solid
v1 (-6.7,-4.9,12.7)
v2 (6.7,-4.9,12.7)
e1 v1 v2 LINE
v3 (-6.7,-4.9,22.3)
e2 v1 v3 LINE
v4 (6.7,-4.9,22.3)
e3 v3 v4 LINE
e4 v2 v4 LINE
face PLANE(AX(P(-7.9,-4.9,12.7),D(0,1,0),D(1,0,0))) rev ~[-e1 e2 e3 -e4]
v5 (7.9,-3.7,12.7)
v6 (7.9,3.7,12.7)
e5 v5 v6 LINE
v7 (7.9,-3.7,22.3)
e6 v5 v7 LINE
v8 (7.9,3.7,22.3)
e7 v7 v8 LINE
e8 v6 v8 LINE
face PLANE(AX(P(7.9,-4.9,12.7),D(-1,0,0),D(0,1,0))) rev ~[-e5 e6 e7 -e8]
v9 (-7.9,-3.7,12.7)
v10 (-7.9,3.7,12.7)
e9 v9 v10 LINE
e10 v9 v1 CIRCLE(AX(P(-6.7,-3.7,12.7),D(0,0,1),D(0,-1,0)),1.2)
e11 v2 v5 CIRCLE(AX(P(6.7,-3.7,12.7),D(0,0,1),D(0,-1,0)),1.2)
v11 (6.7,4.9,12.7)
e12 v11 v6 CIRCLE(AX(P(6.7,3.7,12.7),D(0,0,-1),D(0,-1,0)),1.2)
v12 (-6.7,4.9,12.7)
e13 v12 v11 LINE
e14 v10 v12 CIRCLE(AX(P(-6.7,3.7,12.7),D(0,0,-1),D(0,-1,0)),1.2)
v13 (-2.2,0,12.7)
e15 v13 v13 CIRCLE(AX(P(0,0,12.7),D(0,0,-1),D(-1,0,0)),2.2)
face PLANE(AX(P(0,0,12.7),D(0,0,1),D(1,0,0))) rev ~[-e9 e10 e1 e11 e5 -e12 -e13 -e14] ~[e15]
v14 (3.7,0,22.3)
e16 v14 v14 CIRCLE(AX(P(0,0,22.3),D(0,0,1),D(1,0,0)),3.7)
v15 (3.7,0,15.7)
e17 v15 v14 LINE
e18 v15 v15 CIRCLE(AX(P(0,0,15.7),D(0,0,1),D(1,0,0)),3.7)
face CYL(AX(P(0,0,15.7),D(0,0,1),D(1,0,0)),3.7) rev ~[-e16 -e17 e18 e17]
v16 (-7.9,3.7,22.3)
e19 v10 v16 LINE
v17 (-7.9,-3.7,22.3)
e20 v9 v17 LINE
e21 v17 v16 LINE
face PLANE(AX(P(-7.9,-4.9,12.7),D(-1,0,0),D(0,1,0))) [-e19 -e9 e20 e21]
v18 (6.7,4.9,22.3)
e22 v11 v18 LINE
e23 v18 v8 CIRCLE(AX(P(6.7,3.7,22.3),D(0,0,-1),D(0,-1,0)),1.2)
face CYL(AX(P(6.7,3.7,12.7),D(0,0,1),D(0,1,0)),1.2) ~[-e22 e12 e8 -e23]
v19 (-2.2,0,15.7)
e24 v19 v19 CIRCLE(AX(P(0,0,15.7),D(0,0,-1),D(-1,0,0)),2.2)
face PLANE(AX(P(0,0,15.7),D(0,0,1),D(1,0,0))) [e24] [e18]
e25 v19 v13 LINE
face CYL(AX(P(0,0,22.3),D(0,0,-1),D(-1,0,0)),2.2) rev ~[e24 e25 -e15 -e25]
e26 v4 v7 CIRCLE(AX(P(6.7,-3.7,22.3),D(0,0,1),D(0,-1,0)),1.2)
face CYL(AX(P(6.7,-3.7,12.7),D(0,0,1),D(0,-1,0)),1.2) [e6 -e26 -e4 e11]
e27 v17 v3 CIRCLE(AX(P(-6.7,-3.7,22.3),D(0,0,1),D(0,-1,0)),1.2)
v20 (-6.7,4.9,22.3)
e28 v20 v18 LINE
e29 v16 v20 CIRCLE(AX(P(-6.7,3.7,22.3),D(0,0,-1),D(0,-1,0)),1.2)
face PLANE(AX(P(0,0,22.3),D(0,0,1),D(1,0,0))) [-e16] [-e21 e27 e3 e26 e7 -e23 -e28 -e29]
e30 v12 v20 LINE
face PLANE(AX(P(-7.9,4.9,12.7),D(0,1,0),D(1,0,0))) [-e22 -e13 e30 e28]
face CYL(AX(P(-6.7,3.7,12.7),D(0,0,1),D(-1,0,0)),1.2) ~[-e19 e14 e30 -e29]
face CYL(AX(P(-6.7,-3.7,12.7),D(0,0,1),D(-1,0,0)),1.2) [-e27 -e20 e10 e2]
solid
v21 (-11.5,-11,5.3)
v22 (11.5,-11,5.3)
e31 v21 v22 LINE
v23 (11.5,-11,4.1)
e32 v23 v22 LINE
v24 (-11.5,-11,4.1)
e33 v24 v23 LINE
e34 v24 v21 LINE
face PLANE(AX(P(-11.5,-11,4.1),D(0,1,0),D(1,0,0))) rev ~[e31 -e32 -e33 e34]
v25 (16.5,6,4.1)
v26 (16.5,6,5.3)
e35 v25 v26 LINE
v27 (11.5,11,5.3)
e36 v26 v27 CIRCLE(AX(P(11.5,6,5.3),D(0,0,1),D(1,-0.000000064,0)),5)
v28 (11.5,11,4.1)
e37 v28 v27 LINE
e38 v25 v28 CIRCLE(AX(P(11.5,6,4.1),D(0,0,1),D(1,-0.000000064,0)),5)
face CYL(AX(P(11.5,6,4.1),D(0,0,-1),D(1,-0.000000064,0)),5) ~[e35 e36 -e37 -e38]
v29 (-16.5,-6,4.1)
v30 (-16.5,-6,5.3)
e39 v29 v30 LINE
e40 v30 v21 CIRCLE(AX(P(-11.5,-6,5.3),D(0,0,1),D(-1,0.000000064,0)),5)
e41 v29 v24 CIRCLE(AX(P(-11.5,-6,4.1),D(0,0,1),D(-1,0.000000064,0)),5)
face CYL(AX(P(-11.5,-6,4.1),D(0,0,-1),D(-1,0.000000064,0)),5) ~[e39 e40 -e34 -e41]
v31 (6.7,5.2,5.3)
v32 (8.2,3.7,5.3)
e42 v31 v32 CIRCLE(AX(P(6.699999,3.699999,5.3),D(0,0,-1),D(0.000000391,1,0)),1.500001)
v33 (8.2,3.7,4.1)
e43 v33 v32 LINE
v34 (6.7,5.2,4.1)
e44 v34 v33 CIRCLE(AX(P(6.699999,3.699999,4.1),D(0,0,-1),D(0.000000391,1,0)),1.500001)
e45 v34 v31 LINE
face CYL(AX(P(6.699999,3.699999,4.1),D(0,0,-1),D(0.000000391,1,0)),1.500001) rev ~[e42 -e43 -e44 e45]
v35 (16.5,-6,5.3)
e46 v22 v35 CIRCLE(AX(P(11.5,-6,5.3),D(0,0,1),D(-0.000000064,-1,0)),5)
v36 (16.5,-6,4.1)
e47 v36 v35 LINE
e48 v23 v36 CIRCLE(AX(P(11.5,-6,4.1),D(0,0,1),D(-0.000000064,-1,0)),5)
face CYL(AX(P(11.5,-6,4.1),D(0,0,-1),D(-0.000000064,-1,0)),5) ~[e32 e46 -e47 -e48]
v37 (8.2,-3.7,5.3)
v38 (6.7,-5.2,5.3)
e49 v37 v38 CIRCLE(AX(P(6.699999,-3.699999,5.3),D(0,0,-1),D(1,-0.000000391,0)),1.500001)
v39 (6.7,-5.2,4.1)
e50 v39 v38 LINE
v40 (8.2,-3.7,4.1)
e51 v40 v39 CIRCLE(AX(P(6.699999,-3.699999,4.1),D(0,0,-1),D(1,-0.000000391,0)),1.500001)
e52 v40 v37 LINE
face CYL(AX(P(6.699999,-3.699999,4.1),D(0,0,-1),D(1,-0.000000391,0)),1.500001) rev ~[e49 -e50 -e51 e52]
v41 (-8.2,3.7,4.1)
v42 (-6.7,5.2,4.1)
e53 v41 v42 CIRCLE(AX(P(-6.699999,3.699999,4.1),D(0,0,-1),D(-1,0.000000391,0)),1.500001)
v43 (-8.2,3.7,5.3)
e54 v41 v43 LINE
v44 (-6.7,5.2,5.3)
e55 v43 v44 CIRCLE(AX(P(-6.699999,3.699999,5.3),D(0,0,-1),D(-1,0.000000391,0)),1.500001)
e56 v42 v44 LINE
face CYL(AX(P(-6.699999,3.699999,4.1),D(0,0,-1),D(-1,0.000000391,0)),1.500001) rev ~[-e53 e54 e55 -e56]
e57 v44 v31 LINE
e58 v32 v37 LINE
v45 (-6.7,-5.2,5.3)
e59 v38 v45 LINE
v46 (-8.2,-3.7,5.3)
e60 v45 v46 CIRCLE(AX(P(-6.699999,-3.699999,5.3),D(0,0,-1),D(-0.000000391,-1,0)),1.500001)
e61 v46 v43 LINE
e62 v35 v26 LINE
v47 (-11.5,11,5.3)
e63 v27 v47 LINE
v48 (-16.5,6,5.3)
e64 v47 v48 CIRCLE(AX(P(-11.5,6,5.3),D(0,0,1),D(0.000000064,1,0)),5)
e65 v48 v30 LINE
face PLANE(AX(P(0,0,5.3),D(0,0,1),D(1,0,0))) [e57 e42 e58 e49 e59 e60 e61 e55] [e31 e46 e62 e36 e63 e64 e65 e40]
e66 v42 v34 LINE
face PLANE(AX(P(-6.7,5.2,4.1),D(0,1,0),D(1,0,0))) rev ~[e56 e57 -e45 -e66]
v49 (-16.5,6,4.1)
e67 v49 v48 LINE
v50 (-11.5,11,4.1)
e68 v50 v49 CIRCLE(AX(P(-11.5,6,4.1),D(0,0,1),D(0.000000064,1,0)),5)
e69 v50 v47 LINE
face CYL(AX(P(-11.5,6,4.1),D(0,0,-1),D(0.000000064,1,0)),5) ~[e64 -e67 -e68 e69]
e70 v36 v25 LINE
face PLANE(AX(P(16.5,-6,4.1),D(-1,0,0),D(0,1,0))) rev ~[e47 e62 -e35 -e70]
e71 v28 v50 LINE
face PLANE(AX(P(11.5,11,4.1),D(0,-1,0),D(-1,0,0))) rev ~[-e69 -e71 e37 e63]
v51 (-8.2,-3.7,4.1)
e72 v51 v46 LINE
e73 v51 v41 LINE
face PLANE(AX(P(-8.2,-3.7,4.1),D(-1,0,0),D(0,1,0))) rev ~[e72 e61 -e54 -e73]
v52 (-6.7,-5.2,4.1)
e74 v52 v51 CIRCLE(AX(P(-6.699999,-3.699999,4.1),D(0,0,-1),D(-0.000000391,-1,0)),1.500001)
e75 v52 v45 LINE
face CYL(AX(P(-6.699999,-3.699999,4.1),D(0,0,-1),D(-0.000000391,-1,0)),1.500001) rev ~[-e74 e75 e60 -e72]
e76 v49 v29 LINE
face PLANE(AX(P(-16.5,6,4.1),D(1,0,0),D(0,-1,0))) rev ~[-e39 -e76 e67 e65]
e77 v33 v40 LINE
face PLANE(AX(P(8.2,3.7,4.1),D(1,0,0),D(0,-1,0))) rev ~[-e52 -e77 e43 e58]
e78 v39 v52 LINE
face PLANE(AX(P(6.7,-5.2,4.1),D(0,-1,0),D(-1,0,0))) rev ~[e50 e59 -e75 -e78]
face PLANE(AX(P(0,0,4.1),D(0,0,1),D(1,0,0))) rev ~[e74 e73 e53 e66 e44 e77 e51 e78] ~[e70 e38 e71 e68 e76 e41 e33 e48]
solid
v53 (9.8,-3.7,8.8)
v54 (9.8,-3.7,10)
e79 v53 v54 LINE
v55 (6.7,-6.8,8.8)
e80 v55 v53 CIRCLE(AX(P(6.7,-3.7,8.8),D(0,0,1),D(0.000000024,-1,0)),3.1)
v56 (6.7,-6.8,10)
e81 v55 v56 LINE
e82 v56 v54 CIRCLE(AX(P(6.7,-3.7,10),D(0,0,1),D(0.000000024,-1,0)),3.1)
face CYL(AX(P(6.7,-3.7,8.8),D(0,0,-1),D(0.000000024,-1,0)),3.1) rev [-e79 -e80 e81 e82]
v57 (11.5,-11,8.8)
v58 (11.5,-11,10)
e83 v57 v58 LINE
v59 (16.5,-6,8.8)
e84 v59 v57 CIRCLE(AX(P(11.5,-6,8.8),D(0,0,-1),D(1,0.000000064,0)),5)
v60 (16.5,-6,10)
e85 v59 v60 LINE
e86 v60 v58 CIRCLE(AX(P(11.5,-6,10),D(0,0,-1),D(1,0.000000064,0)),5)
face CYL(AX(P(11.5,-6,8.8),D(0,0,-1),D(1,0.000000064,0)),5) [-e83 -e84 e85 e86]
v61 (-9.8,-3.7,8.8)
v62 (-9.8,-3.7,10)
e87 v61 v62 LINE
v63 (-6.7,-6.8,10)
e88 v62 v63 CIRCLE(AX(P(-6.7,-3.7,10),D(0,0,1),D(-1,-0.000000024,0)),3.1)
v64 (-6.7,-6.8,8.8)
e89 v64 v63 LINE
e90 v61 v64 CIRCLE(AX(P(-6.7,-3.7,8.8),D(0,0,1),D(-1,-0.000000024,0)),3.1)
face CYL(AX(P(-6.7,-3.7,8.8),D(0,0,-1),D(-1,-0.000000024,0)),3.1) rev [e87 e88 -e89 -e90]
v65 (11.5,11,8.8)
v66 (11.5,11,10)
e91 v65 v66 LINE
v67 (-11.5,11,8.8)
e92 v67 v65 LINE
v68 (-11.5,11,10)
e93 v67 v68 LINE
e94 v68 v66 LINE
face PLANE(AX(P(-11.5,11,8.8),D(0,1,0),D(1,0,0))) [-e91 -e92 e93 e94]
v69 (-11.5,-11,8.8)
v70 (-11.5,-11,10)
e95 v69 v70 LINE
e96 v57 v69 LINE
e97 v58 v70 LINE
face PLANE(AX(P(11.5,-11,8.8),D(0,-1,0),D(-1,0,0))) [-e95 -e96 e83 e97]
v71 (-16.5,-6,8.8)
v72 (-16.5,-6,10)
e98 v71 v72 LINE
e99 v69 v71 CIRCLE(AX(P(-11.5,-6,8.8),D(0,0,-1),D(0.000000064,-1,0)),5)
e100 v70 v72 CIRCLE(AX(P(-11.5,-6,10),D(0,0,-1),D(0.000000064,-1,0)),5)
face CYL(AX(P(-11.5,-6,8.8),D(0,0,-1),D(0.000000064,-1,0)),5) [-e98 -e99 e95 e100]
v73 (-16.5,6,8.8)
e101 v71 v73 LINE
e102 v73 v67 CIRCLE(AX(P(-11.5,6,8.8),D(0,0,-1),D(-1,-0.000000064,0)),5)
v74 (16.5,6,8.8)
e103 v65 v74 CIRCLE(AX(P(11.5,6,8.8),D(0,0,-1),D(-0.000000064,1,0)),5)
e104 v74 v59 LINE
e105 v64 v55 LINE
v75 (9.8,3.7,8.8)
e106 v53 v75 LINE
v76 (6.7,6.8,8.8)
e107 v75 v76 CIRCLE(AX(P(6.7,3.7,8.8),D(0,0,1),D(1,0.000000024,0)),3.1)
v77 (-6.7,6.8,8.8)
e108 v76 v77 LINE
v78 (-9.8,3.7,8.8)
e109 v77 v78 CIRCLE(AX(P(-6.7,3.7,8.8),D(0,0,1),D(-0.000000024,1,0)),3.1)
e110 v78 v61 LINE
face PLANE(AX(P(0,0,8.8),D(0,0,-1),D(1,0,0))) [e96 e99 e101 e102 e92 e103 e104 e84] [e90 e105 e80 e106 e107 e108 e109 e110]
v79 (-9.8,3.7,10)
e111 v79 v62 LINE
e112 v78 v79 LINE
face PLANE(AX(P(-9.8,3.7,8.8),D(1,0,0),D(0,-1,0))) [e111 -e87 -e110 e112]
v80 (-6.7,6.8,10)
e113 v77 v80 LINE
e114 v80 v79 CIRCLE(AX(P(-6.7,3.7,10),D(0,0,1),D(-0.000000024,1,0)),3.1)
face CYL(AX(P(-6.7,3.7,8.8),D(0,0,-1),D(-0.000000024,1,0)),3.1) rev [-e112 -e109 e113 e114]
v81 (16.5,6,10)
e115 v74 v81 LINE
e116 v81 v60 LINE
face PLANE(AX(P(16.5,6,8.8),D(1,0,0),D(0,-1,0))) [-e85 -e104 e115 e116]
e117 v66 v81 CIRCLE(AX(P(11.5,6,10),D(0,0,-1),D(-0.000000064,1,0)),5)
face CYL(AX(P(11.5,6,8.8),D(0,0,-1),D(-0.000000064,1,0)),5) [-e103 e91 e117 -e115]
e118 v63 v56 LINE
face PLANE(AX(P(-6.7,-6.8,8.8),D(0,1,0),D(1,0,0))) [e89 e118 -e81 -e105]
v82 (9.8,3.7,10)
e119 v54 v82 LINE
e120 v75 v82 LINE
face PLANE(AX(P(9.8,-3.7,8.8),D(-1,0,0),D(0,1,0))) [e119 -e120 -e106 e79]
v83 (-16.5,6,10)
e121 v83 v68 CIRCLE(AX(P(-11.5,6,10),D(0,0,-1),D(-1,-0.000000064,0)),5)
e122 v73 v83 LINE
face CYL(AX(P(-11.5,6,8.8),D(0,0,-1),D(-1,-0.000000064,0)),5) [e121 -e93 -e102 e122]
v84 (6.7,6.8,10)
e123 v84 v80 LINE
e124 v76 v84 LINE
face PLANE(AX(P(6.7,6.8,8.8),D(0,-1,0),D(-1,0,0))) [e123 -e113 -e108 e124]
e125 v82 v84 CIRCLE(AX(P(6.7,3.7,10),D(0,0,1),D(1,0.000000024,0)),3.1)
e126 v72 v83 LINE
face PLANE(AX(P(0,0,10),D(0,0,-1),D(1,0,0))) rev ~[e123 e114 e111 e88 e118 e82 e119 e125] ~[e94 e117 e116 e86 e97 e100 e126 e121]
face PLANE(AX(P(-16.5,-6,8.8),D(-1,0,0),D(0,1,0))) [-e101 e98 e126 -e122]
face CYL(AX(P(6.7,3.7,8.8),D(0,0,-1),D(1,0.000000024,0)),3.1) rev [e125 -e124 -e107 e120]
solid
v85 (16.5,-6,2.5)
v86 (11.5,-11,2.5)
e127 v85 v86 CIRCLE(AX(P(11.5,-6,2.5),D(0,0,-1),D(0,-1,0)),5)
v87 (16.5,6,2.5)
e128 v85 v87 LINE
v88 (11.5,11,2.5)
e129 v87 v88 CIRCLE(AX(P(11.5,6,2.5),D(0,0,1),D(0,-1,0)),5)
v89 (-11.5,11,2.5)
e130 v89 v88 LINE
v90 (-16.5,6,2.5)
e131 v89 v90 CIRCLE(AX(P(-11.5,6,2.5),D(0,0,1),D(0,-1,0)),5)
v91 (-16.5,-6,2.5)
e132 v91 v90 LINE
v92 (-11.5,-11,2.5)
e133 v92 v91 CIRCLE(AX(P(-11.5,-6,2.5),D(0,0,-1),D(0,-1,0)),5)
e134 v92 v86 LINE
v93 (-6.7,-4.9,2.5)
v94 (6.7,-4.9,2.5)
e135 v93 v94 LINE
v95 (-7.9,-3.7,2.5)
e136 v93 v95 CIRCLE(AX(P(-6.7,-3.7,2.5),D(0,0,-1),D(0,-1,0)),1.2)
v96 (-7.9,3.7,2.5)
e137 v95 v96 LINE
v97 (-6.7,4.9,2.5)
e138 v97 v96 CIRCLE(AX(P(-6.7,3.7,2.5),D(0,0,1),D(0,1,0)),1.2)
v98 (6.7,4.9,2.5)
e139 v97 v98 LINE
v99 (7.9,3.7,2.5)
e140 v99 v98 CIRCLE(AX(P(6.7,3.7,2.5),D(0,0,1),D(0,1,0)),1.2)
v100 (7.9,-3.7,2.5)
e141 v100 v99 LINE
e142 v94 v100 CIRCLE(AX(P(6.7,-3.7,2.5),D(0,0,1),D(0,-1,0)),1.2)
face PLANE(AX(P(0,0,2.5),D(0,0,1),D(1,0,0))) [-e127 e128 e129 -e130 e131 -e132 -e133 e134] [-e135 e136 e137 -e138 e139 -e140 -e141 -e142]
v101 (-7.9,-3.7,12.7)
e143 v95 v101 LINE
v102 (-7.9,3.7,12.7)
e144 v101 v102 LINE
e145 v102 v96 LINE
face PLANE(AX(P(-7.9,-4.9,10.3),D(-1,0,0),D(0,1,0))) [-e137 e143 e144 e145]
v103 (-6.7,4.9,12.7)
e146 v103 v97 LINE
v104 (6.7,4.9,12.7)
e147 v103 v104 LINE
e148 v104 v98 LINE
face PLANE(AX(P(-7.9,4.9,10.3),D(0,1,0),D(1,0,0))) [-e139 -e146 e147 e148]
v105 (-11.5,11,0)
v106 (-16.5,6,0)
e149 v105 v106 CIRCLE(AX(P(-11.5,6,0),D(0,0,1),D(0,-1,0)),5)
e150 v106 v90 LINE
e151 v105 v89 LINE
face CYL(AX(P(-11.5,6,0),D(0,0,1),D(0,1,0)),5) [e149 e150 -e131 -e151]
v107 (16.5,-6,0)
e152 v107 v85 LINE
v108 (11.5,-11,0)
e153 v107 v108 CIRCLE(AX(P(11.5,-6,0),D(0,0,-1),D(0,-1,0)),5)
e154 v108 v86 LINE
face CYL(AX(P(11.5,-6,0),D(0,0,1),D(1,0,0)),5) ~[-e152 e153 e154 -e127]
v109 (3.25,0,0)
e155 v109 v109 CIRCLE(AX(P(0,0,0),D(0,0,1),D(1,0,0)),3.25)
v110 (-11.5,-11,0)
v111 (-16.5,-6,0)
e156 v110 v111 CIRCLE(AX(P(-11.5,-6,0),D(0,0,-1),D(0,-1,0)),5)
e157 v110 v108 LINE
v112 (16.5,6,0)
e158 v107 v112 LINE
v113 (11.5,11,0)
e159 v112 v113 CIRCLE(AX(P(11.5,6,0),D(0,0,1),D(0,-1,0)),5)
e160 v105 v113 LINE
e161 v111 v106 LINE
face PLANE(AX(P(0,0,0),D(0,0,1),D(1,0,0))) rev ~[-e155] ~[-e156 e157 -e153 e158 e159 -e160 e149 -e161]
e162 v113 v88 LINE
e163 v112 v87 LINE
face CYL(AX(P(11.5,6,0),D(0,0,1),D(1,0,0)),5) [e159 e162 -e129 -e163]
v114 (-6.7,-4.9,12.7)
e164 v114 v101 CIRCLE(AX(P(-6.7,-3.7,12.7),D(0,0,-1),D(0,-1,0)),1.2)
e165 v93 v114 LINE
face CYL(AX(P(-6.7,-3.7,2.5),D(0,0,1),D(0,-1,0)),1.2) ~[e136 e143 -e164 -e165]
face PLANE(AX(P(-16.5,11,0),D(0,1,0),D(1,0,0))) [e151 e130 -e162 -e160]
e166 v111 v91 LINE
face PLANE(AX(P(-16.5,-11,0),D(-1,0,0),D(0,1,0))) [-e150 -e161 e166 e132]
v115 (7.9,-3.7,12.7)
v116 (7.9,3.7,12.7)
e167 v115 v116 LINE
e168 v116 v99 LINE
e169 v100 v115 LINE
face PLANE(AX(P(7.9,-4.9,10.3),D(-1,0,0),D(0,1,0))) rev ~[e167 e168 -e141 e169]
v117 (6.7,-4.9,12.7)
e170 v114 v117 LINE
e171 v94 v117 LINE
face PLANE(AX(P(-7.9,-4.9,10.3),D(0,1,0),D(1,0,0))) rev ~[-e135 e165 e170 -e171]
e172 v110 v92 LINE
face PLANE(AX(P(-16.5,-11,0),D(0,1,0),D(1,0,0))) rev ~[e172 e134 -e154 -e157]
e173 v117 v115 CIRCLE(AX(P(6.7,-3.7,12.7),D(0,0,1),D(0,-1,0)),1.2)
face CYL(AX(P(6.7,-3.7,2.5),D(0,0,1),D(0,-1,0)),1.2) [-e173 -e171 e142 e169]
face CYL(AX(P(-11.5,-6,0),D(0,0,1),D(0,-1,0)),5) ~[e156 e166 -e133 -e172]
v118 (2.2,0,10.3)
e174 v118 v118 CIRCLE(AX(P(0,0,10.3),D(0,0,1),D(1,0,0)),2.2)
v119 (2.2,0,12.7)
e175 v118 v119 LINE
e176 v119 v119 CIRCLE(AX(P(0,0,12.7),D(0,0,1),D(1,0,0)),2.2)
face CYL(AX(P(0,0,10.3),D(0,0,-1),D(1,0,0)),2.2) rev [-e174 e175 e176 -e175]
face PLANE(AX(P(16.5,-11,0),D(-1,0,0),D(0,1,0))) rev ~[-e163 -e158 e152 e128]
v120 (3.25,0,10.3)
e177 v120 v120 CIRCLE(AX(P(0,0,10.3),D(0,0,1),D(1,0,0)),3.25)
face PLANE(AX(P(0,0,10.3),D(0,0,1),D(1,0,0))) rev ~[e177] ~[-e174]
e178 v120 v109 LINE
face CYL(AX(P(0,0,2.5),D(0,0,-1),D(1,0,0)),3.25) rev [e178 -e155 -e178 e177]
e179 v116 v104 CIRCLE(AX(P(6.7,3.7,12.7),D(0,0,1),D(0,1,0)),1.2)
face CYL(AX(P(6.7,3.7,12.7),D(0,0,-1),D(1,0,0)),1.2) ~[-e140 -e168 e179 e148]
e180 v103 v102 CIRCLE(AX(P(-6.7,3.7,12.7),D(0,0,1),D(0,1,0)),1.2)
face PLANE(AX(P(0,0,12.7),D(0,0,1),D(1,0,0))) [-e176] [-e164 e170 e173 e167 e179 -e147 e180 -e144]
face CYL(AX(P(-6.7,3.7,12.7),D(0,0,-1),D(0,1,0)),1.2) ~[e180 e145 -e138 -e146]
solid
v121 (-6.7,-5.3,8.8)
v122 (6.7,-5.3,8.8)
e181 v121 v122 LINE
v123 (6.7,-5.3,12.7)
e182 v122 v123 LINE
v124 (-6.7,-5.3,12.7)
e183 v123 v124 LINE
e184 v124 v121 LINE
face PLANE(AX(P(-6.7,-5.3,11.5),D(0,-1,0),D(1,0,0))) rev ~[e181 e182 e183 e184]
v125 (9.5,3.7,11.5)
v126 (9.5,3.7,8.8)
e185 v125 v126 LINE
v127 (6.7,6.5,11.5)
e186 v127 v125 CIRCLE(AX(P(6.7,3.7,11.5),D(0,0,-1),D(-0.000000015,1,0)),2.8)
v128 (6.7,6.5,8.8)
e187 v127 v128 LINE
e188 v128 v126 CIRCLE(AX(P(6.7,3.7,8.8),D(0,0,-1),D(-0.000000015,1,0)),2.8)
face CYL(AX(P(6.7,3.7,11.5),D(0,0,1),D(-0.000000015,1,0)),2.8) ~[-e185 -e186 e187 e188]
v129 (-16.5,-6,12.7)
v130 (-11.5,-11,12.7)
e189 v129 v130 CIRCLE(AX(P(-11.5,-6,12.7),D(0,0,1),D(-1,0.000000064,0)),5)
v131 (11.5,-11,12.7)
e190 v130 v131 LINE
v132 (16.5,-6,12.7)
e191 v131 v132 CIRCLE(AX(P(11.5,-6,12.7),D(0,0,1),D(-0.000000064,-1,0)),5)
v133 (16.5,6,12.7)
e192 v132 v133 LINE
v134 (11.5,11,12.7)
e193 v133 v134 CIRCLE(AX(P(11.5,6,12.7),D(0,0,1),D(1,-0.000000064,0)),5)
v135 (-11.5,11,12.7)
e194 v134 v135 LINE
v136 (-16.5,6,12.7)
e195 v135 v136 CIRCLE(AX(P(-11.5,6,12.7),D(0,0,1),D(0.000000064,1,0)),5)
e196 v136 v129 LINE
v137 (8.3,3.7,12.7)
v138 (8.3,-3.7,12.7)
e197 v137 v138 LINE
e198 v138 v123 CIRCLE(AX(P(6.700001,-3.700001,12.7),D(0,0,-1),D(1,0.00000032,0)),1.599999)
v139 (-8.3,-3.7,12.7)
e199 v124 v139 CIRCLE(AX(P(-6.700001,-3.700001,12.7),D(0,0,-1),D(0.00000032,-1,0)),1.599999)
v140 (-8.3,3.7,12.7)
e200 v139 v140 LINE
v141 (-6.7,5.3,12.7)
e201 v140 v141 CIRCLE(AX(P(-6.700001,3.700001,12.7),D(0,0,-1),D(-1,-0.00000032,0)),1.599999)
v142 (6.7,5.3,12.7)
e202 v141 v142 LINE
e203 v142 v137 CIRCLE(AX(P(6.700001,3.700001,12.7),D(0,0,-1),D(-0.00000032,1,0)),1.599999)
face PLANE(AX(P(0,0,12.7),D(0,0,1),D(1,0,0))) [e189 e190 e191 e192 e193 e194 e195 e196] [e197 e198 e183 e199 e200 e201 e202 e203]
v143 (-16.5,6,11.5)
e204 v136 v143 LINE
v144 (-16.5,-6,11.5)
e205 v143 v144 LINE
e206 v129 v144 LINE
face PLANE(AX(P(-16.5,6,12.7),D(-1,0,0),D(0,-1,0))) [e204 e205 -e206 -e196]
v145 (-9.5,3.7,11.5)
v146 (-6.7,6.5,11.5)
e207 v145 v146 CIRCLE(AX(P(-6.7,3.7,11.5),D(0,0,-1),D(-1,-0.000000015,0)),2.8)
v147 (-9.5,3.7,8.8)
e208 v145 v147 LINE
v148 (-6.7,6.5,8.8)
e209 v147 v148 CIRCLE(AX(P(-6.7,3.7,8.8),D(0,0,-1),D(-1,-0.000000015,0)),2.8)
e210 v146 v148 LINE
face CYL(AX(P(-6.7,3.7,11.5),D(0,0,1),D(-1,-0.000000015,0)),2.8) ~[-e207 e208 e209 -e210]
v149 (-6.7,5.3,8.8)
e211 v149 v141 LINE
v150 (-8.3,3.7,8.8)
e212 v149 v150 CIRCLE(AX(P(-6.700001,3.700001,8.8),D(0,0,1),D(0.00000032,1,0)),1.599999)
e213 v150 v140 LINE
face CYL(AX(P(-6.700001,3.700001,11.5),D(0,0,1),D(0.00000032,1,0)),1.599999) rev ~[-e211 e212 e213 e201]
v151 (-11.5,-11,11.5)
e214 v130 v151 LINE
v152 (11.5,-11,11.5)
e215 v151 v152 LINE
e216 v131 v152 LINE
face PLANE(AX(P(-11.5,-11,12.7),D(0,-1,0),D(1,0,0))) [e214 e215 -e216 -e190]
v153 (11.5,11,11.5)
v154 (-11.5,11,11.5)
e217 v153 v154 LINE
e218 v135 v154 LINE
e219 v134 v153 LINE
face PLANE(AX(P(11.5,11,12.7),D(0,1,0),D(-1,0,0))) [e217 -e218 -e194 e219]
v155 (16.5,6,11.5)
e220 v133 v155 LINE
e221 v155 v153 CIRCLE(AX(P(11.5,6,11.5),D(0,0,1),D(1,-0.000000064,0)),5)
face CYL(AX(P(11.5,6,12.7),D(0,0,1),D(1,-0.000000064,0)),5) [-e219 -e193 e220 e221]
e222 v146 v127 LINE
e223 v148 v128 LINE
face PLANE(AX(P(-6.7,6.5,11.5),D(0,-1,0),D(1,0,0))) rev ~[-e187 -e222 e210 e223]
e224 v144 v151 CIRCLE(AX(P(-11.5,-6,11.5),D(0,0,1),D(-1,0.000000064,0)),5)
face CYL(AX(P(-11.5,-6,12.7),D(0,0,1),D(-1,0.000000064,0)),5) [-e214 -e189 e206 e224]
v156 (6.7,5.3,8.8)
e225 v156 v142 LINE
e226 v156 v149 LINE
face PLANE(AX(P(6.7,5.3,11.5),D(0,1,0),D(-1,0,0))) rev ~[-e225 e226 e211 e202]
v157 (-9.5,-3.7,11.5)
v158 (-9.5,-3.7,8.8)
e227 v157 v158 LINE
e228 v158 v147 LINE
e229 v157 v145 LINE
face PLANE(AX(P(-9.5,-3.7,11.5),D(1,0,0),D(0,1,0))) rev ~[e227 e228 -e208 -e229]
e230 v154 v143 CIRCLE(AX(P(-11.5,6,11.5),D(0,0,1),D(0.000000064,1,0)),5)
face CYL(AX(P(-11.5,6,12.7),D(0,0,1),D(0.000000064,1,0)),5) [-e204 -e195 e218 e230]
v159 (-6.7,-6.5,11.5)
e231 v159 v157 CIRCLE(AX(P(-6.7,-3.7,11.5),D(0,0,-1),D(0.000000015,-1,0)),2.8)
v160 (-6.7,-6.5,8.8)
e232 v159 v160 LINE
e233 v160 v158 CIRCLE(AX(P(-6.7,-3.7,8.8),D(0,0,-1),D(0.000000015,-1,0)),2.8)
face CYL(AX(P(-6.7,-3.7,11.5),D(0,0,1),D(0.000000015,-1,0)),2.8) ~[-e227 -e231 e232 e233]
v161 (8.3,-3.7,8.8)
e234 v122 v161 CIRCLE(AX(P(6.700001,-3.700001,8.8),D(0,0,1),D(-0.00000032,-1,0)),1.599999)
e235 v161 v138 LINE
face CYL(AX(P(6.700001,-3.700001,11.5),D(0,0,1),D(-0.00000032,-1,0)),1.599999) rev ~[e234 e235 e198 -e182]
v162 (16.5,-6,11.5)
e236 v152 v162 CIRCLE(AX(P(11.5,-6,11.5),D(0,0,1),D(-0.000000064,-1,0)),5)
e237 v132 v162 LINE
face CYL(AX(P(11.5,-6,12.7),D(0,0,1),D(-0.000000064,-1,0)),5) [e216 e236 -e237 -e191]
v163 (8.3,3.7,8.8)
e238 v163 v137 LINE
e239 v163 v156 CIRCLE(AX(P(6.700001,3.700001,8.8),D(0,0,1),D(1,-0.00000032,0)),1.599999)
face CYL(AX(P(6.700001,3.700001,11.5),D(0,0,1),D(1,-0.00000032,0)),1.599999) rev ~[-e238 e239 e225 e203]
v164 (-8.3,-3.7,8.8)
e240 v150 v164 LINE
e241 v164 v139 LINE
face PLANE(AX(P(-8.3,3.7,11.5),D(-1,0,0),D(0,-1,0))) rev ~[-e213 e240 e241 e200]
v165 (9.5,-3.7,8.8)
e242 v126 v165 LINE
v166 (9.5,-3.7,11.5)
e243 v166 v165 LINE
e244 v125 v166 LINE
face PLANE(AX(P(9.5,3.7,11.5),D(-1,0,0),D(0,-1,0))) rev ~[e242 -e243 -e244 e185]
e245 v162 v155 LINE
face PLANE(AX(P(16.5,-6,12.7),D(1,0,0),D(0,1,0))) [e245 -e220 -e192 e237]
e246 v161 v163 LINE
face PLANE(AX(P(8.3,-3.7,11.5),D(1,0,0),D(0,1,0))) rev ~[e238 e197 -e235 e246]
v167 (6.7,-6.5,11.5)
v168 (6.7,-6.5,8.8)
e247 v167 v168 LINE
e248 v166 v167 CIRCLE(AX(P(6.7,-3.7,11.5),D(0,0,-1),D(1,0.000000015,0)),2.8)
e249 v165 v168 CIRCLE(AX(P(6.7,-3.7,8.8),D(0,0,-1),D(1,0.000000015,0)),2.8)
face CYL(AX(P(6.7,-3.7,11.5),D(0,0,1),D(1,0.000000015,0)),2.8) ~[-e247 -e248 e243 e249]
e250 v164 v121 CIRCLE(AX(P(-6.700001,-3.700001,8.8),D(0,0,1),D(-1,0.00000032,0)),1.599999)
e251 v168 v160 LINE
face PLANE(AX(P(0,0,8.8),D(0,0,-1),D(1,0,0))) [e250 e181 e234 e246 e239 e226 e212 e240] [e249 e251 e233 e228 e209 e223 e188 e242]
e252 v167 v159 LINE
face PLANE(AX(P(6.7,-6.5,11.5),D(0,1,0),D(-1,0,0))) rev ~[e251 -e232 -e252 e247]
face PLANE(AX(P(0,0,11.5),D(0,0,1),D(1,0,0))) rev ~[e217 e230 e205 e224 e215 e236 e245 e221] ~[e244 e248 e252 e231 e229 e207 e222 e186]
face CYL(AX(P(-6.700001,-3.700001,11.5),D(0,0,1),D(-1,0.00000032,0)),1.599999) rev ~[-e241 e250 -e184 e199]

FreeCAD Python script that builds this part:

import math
import FreeCAD as App
import Part
import Sketcher
from FreeCAD import Vector


def edges_at(feature, points):
    """Names of the edges that pass closest to the given points."""
    edges = feature.Shape.Edges
    near = lambda p: min(range(len(edges)), key=lambda i: edges[i].distToShape(Part.Vertex(*p))[0])
    return sorted({f"Edge{near(p) + 1}" for p in points})


def add_polygon(sketch, points):
    """Adds a closed chain of lines whose ends are joined by coincident constraints."""
    first, n = sketch.GeometryCount, len(points)
    for a, b in zip(points, points[1:] + points[:1]):
        sketch.addGeometry(Part.LineSegment(App.Vector(*a, 0), App.Vector(*b, 0)), False)
    for i in range(n):
        sketch.addConstraint(Sketcher.Constraint("Coincident", first + i, 2, first + (i + 1) % n, 1))

doc = App.newDocument("Part")
body = doc.addObject("PartDesign::Body", "Body")

# Sketch on XY plane
sketch1 = body.newObject("Sketcher::SketchObject", "Sketch")
sketch1.AttachmentSupport = (doc.getObject("XY_Plane"), [""])
sketch1.MapMode = "FlatFace"
add_polygon(sketch1, [(-16.5, 11), (-16.5, -11), (16.5, -11), (16.5, 11)])  # lines 0-3
sketch1.addGeometry(Part.Circle(Vector(0, 0, 0), Vector(0, 0, 1), 3.2), False)  # 4
sketch1.addConstraint(Sketcher.Constraint("Vertical", 0))
sketch1.addConstraint(Sketcher.Constraint("Horizontal", 1))
sketch1.addConstraint(Sketcher.Constraint("Vertical", 2))
sketch1.addConstraint(Sketcher.Constraint("Horizontal", 3))
sketch1.addConstraint(Sketcher.Constraint("Coincident", 4, 3, -1, 1))
sketch1.addConstraint(Sketcher.Constraint("Symmetric", 0, 2, 2, 2, -1, 1))
sketch1.addConstraint(Sketcher.Constraint("Diameter", 4, 6.5))
sketch1.addConstraint(Sketcher.Constraint("DistanceX", 1, 1, 1, 2, 33.0))
sketch1.addConstraint(Sketcher.Constraint("DistanceY", 0, 2, 0, 1, 22.0))
pad1 = body.newObject("PartDesign::Pad", "Pad")
pad1.Profile = sketch1
pad1.Length = 2.5

# Sketch on XY plane
sketch2 = body.newObject("Sketcher::SketchObject", "Sketch001")
sketch2.AttachmentSupport = (doc.getObject("XY_Plane"), [""])
sketch2.MapMode = "FlatFace"
sketch2.AttachmentOffset = App.Placement(Vector(0, 0, 2.5), App.Rotation())
add_polygon(sketch2, [(-7.9, 4.9), (-7.9, -4.9), (7.9, -4.9), (7.9, 4.9)])  # lines 0-3
sketch2.addGeometry(Part.Circle(Vector(0, 0, 0), Vector(0, 0, 1), 3.2), False)  # 4
sketch2.addConstraint(Sketcher.Constraint("Vertical", 0))
sketch2.addConstraint(Sketcher.Constraint("Horizontal", 1))
sketch2.addConstraint(Sketcher.Constraint("Vertical", 2))
sketch2.addConstraint(Sketcher.Constraint("Horizontal", 3))
sketch2.addConstraint(Sketcher.Constraint("Coincident", 4, 3, -1, 1))
sketch2.addConstraint(Sketcher.Constraint("Symmetric", 0, 2, 2, 2, -1, 1))
sketch2.addConstraint(Sketcher.Constraint("Diameter", 4, 6.5))
sketch2.addConstraint(Sketcher.Constraint("DistanceX", 1, 1, 1, 2, 15.8))
sketch2.addConstraint(Sketcher.Constraint("DistanceY", 0, 2, 0, 1, 9.8))
pad2 = body.newObject("PartDesign::Pad", "Pad001")
pad2.Profile = sketch2
pad2.Length = 7.8

# Sketch on XY plane
sketch3 = body.newObject("Sketcher::SketchObject", "Sketch002")
sketch3.AttachmentSupport = (doc.getObject("XY_Plane"), [""])
sketch3.MapMode = "FlatFace"
sketch3.AttachmentOffset = App.Placement(Vector(0, 0, 10.3), App.Rotation())
add_polygon(sketch3, [(-7.9, 4.9), (-7.9, -4.9), (7.9, -4.9), (7.9, 4.9)])  # lines 0-3
sketch3.addGeometry(Part.Circle(Vector(0, 0, 0), Vector(0, 0, 1), 2.2), False)  # 4
sketch3.addConstraint(Sketcher.Constraint("Vertical", 0))
sketch3.addConstraint(Sketcher.Constraint("Horizontal", 1))
sketch3.addConstraint(Sketcher.Constraint("Vertical", 2))
sketch3.addConstraint(Sketcher.Constraint("Horizontal", 3))
sketch3.addConstraint(Sketcher.Constraint("Coincident", 4, 3, -1, 1))
sketch3.addConstraint(Sketcher.Constraint("Symmetric", 0, 2, 2, 2, -1, 1))
sketch3.addConstraint(Sketcher.Constraint("Diameter", 4, 4.4))
sketch3.addConstraint(Sketcher.Constraint("DistanceX", 1, 1, 1, 2, 15.8))
sketch3.addConstraint(Sketcher.Constraint("DistanceY", 0, 2, 0, 1, 9.8))
pad3 = body.newObject("PartDesign::Pad", "Pad002")
pad3.Profile = sketch3
pad3.Length = 2.4
doc.recompute()

fillet = body.newObject("PartDesign::Fillet", "Fillet")
fillet.Base = (pad3, edges_at(pad3, [
    (16.5, -11, 1.25),
    (16.5, 11, 1.25),
    (-16.5, -11, 1.25),
    (-16.5, 11, 1.25),
]))
fillet.Radius = 5
doc.recompute()

fillet2 = body.newObject("PartDesign::Fillet", "Fillet001")
fillet2.Base = (fillet, edges_at(fillet, [
    (-7.9, 4.9, 7.6),
    (-7.9, -4.9, 7.6),
    (7.9, 4.9, 7.6),
    (7.9, -4.9, 7.6),
]))
fillet2.Radius = 1.2
body2 = doc.addObject("PartDesign::Body", "Body001")

# Sketch on XY plane
sketch4 = body2.newObject("Sketcher::SketchObject", "Sketch003")
sketch4.AttachmentSupport = (doc.getObject("XY_Plane001"), [""])
sketch4.MapMode = "FlatFace"
sketch4.AttachmentOffset = App.Placement(Vector(0, 0, 12.7), App.Rotation())
add_polygon(sketch4, [(-8, 5), (-8, -5), (8, -5), (8, 5)])  # lines 0-3
sketch4.addConstraint(Sketcher.Constraint("Vertical", 0))
sketch4.addConstraint(Sketcher.Constraint("Horizontal", 1))
sketch4.addConstraint(Sketcher.Constraint("Vertical", 2))
sketch4.addConstraint(Sketcher.Constraint("Horizontal", 3))
sketch4.addConstraint(Sketcher.Constraint("Symmetric", 0, 2, 2, 2, -1, 1))
sketch4.addConstraint(Sketcher.Constraint("DistanceX", 1, 1, 1, 2, 15.8))
sketch4.addConstraint(Sketcher.Constraint("DistanceY", 0, 2, 0, 1, 9.8))
pad4 = body2.newObject("PartDesign::Pad", "Pad003")
pad4.Profile = sketch4
pad4.Length = 9.6

# Sketch on XY plane
sketch5 = body2.newObject("Sketcher::SketchObject", "Sketch004")
sketch5.AttachmentSupport = (doc.getObject("XY_Plane001"), [""])
sketch5.MapMode = "FlatFace"
sketch5.AttachmentOffset = App.Placement(Vector(0, 0, 22.3), App.Rotation())
sketch5.addGeometry(Part.Circle(Vector(0, 0, 0), Vector(0, 0, 1), 2.2), False)
sketch5.addConstraint(Sketcher.Constraint("Coincident", 0, 3, -1, 1))
sketch5.addConstraint(Sketcher.Constraint("Diameter", 0, 4.4))
doc.recompute()
hole = body2.newObject("PartDesign::Hole", "Hole")
hole.Profile = sketch5
hole.ThreadType = "None"
hole.Diameter = 4.4
hole.DepthType = "ThroughAll"
hole.HoleCutType = "Counterbore"
hole.HoleCutDiameter = 7.4
hole.HoleCutDepth = 6.6
doc.recompute()

fillet3 = body2.newObject("PartDesign::Fillet", "Fillet002")
fillet3.Base = (hole, edges_at(hole, [
    (7.9, 4.9, 17.5),
    (7.9, -4.9, 17.5),
    (-7.9, 4.9, 17.5),
    (-7.9, -4.9, 17.5),
]))
fillet3.Radius = 1.2
body3 = doc.addObject("PartDesign::Body", "Body002")

# Sketch on XY plane
sketch6 = body3.newObject("Sketcher::SketchObject", "Sketch005")
sketch6.AttachmentSupport = (doc.getObject("XY_Plane002"), [""])
sketch6.MapMode = "FlatFace"
sketch6.AttachmentOffset = App.Placement(Vector(0, 0, 12.7), App.Rotation())
sketch6.addGeometry(Part.LineSegment(Vector(11.5, 11, 0), Vector(-11.5, 11, 0)), False)
sketch6.addGeometry(Part.ArcOfCircle(Part.Circle(Vector(-11.5, 6, 0), Vector(0, 0, 1), 5), math.radians(90), math.radians(180)), False)
sketch6.addGeometry(Part.LineSegment(Vector(-16.5, 6, 0), Vector(-16.5, -6, 0)), False)
sketch6.addGeometry(Part.ArcOfCircle(Part.Circle(Vector(-11.5, -6, 0), Vector(0, 0, 1), 5), math.radians(180), math.radians(270)), False)
sketch6.addGeometry(Part.LineSegment(Vector(-11.5, -11, 0), Vector(11.5, -11, 0)), False)
sketch6.addGeometry(Part.ArcOfCircle(Part.Circle(Vector(11.5, -6, 0), Vector(0, 0, 1), 5), math.radians(-90), math.radians(0)), False)
sketch6.addGeometry(Part.LineSegment(Vector(16.5, -6, 0), Vector(16.5, 6, 0)), False)
sketch6.addGeometry(Part.ArcOfCircle(Part.Circle(Vector(11.5, 6, 0), Vector(0, 0, 1), 5), math.radians(0), math.radians(90)), False)
sketch6.addGeometry(Part.ArcOfCircle(Part.Circle(Vector(-6.7, 3.7, 0), Vector(0, 0, 1), 1.6), math.radians(90), math.radians(180)), False)
sketch6.addGeometry(Part.LineSegment(Vector(-6.7, 5.3, 0), Vector(6.7, 5.3, 0)), False)
sketch6.addGeometry(Part.ArcOfCircle(Part.Circle(Vector(6.7, 3.7, 0), Vector(0, 0, 1), 1.6), math.radians(0), math.radians(90)), False)
sketch6.addGeometry(Part.LineSegment(Vector(8.3, 3.7, 0), Vector(8.3, -3.7, 0)), False)
sketch6.addGeometry(Part.ArcOfCircle(Part.Circle(Vector(6.7, -3.7, 0), Vector(0, 0, 1), 1.6), math.radians(-90), math.radians(0)), False)
sketch6.addGeometry(Part.LineSegment(Vector(6.7, -5.3, 0), Vector(-6.7, -5.3, 0)), False)
sketch6.addGeometry(Part.ArcOfCircle(Part.Circle(Vector(-6.7, -3.7, 0), Vector(0, 0, 1), 1.6), math.radians(180), math.radians(270)), False)
sketch6.addGeometry(Part.LineSegment(Vector(-8.3, -3.7, 0), Vector(-8.3, 3.7, 0)), False)
sketch6.addConstraint(Sketcher.Constraint("Tangent", 0, 2, 1, 1))
sketch6.addConstraint(Sketcher.Constraint("Tangent", 1, 2, 2, 1))
sketch6.addConstraint(Sketcher.Constraint("Tangent", 2, 2, 3, 1))
sketch6.addConstraint(Sketcher.Constraint("Tangent", 3, 2, 4, 1))
sketch6.addConstraint(Sketcher.Constraint("Tangent", 4, 2, 5, 1))
sketch6.addConstraint(Sketcher.Constraint("Tangent", 5, 2, 6, 1))
sketch6.addConstraint(Sketcher.Constraint("Tangent", 6, 2, 7, 1))
sketch6.addConstraint(Sketcher.Constraint("Tangent", 7, 2, 0, 1))
sketch6.addConstraint(Sketcher.Constraint("Tangent", 8, 1, 9, 1))
sketch6.addConstraint(Sketcher.Constraint("Tangent", 9, 2, 10, 2))
sketch6.addConstraint(Sketcher.Constraint("Tangent", 10, 1, 11, 1))
sketch6.addConstraint(Sketcher.Constraint("Tangent", 11, 2, 12, 2))
sketch6.addConstraint(Sketcher.Constraint("Tangent", 12, 1, 13, 1))
sketch6.addConstraint(Sketcher.Constraint("Tangent", 13, 2, 14, 2))
sketch6.addConstraint(Sketcher.Constraint("Tangent", 14, 1, 15, 1))
sketch6.addConstraint(Sketcher.Constraint("Tangent", 15, 2, 8, 2))
sketch6.addConstraint(Sketcher.Constraint("Horizontal", 0))
sketch6.addConstraint(Sketcher.Constraint("Vertical", 2))
sketch6.addConstraint(Sketcher.Constraint("Horizontal", 4))
sketch6.addConstraint(Sketcher.Constraint("Vertical", 6))
sketch6.addConstraint(Sketcher.Constraint("Horizontal", 9))
sketch6.addConstraint(Sketcher.Constraint("Vertical", 11))
sketch6.addConstraint(Sketcher.Constraint("Horizontal", 13))
sketch6.addConstraint(Sketcher.Constraint("Vertical", 15))
sketch6.addConstraint(Sketcher.Constraint("Equal", 1, 3))
sketch6.addConstraint(Sketcher.Constraint("Equal", 3, 5))
sketch6.addConstraint(Sketcher.Constraint("Equal", 5, 7))
sketch6.addConstraint(Sketcher.Constraint("Equal", 8, 10))
sketch6.addConstraint(Sketcher.Constraint("Equal", 10, 12))
sketch6.addConstraint(Sketcher.Constraint("Equal", 12, 14))
sketch6.addConstraint(Sketcher.Constraint("Symmetric", 1, 3, 5, 3, -1, 1))
sketch6.addConstraint(Sketcher.Constraint("Symmetric", 8, 3, 12, 3, -1, 1))
sketch6.addConstraint(Sketcher.Constraint("Radius", 1, 5.0))
sketch6.addConstraint(Sketcher.Constraint("Radius", 8, 1.599999))
sketch6.addConstraint(Sketcher.Constraint("DistanceX", 0, 2, 0, 1, 23.0))
sketch6.addConstraint(Sketcher.Constraint("DistanceY", 2, 2, 2, 1, 12.0))
sketch6.addConstraint(Sketcher.Constraint("DistanceX", 9, 1, 9, 2, 13.4))
sketch6.addConstraint(Sketcher.Constraint("DistanceY", 11, 2, 11, 1, 7.4))
pad5 = body3.newObject("PartDesign::Pad", "Pad004")
pad5.Profile = sketch6
pad5.Length = 1.2
pad5.Reversed = True

# Sketch on XY plane
sketch7 = body3.newObject("Sketcher::SketchObject", "Sketch006")
sketch7.AttachmentSupport = (doc.getObject("XY_Plane002"), [""])
sketch7.MapMode = "FlatFace"
sketch7.AttachmentOffset = App.Placement(Vector(0, 0, 11.5), App.Rotation())
sketch7.addGeometry(Part.ArcOfCircle(Part.Circle(Vector(-6.7, -3.7, 0), Vector(0, 0, 1), 2.8), math.radians(180), math.radians(270)), False)
sketch7.addGeometry(Part.LineSegment(Vector(-9.5, -3.7, 0), Vector(-9.5, 3.7, 0)), False)
sketch7.addGeometry(Part.ArcOfCircle(Part.Circle(Vector(-6.7, 3.7, 0), Vector(0, 0, 1), 2.8), math.radians(90), math.radians(180)), False)
sketch7.addGeometry(Part.LineSegment(Vector(-6.7, 6.5, 0), Vector(6.7, 6.5, 0)), False)
sketch7.addGeometry(Part.ArcOfCircle(Part.Circle(Vector(6.7, 3.7, 0), Vector(0, 0, 1), 2.8), math.radians(0), math.radians(90)), False)
sketch7.addGeometry(Part.LineSegment(Vector(9.5, 3.7, 0), Vector(9.5, -3.7, 0)), False)
sketch7.addGeometry(Part.ArcOfCircle(Part.Circle(Vector(6.7, -3.7, 0), Vector(0, 0, 1), 2.8), math.radians(-90), math.radians(0)), False)
sketch7.addGeometry(Part.LineSegment(Vector(6.7, -6.5, 0), Vector(-6.7, -6.5, 0)), False)
sketch7.addGeometry(Part.ArcOfCircle(Part.Circle(Vector(-6.7, -3.7, 0), Vector(0, 0, 1), 1.6), math.radians(180), math.radians(270)), False)
sketch7.addGeometry(Part.LineSegment(Vector(-6.7, -5.3, 0), Vector(6.7, -5.3, 0)), False)
sketch7.addGeometry(Part.ArcOfCircle(Part.Circle(Vector(6.7, -3.7, 0), Vector(0, 0, 1), 1.6), math.radians(-90), math.radians(0)), False)
sketch7.addGeometry(Part.LineSegment(Vector(8.3, -3.7, 0), Vector(8.3, 3.7, 0)), False)
sketch7.addGeometry(Part.ArcOfCircle(Part.Circle(Vector(6.7, 3.7, 0), Vector(0, 0, 1), 1.6), math.radians(0), math.radians(90)), False)
sketch7.addGeometry(Part.LineSegment(Vector(6.7, 5.3, 0), Vector(-6.7, 5.3, 0)), False)
sketch7.addGeometry(Part.ArcOfCircle(Part.Circle(Vector(-6.7, 3.7, 0), Vector(0, 0, 1), 1.6), math.radians(90), math.radians(180)), False)
sketch7.addGeometry(Part.LineSegment(Vector(-8.3, 3.7, 0), Vector(-8.3, -3.7, 0)), False)
sketch7.addConstraint(Sketcher.Constraint("Tangent", 0, 1, 1, 1))
sketch7.addConstraint(Sketcher.Constraint("Tangent", 1, 2, 2, 2))
sketch7.addConstraint(Sketcher.Constraint("Tangent", 2, 1, 3, 1))
sketch7.addConstraint(Sketcher.Constraint("Tangent", 3, 2, 4, 2))
sketch7.addConstraint(Sketcher.Constraint("Tangent", 4, 1, 5, 1))
sketch7.addConstraint(Sketcher.Constraint("Tangent", 5, 2, 6, 2))
sketch7.addConstraint(Sketcher.Constraint("Tangent", 6, 1, 7, 1))
sketch7.addConstraint(Sketcher.Constraint("Tangent", 7, 2, 0, 2))
sketch7.addConstraint(Sketcher.Constraint("Tangent", 8, 2, 9, 1))
sketch7.addConstraint(Sketcher.Constraint("Tangent", 9, 2, 10, 1))
sketch7.addConstraint(Sketcher.Constraint("Tangent", 10, 2, 11, 1))
sketch7.addConstraint(Sketcher.Constraint("Tangent", 11, 2, 12, 1))
sketch7.addConstraint(Sketcher.Constraint("Tangent", 12, 2, 13, 1))
sketch7.addConstraint(Sketcher.Constraint("Tangent", 13, 2, 14, 1))
sketch7.addConstraint(Sketcher.Constraint("Tangent", 14, 2, 15, 1))
sketch7.addConstraint(Sketcher.Constraint("Tangent", 15, 2, 8, 1))
sketch7.addConstraint(Sketcher.Constraint("Vertical", 1))
sketch7.addConstraint(Sketcher.Constraint("Horizontal", 3))
sketch7.addConstraint(Sketcher.Constraint("Vertical", 5))
sketch7.addConstraint(Sketcher.Constraint("Horizontal", 7))
sketch7.addConstraint(Sketcher.Constraint("Horizontal", 9))
sketch7.addConstraint(Sketcher.Constraint("Vertical", 11))
sketch7.addConstraint(Sketcher.Constraint("Horizontal", 13))
sketch7.addConstraint(Sketcher.Constraint("Vertical", 15))
sketch7.addConstraint(Sketcher.Constraint("Coincident", 8, 3, 0, 3))
sketch7.addConstraint(Sketcher.Constraint("Coincident", 10, 3, 6, 3))
sketch7.addConstraint(Sketcher.Constraint("Coincident", 12, 3, 4, 3))
sketch7.addConstraint(Sketcher.Constraint("Equal", 0, 2))
sketch7.addConstraint(Sketcher.Constraint("Equal", 2, 4))
sketch7.addConstraint(Sketcher.Constraint("Equal", 4, 6))
sketch7.addConstraint(Sketcher.Constraint("Equal", 12, 14))
sketch7.addConstraint(Sketcher.Constraint("Symmetric", 0, 3, 4, 3, -1, 1))
sketch7.addConstraint(Sketcher.Constraint("Radius", 0, 2.8))
sketch7.addConstraint(Sketcher.Constraint("Radius", 8, 1.599999))
sketch7.addConstraint(Sketcher.Constraint("DistanceX", 3, 1, 3, 2, 13.4))
sketch7.addConstraint(Sketcher.Constraint("DistanceY", 1, 1, 1, 2, 7.4))
pad6 = body3.newObject("PartDesign::Pad", "Pad005")
pad6.Profile = sketch7
pad6.Length = 2.7
pad6.Reversed = True
body4 = doc.addObject("PartDesign::Body", "Body003")

# Sketch on XY plane
sketch8 = body4.newObject("Sketcher::SketchObject", "Sketch007")
sketch8.AttachmentSupport = (doc.getObject("XY_Plane003"), [""])
sketch8.MapMode = "FlatFace"
sketch8.AttachmentOffset = App.Placement(Vector(0, 0, 8.8), App.Rotation())
sketch8.addGeometry(Part.ArcOfCircle(Part.Circle(Vector(-11.5, -6, 0), Vector(0, 0, 1), 5), math.radians(180), math.radians(270)), False)
sketch8.addGeometry(Part.LineSegment(Vector(-16.5, -6, 0), Vector(-16.5, 6, 0)), False)
sketch8.addGeometry(Part.ArcOfCircle(Part.Circle(Vector(-11.5, 6, 0), Vector(0, 0, 1), 5), math.radians(90), math.radians(180)), False)
sketch8.addGeometry(Part.LineSegment(Vector(-11.5, 11, 0), Vector(11.5, 11, 0)), False)
sketch8.addGeometry(Part.ArcOfCircle(Part.Circle(Vector(11.5, 6, 0), Vector(0, 0, 1), 5), math.radians(0), math.radians(90)), False)
sketch8.addGeometry(Part.LineSegment(Vector(16.5, 6, 0), Vector(16.5, -6, 0)), False)
sketch8.addGeometry(Part.ArcOfCircle(Part.Circle(Vector(11.5, -6, 0), Vector(0, 0, 1), 5), math.radians(-90), math.radians(0)), False)
sketch8.addGeometry(Part.LineSegment(Vector(11.5, -11, 0), Vector(-11.5, -11, 0)), False)
sketch8.addGeometry(Part.ArcOfCircle(Part.Circle(Vector(-6.7, -3.7, 0), Vector(0, 0, 1), 3.1), math.radians(-180), math.radians(-90)), False)
sketch8.addGeometry(Part.LineSegment(Vector(-6.7, -6.8, 0), Vector(6.7, -6.8, 0)), False)
sketch8.addGeometry(Part.ArcOfCircle(Part.Circle(Vector(6.7, -3.7, 0), Vector(0, 0, 1), 3.1), math.radians(-90), math.radians(0)), False)
sketch8.addGeometry(Part.LineSegment(Vector(9.8, -3.7, 0), Vector(9.8, 3.7, 0)), False)
sketch8.addGeometry(Part.ArcOfCircle(Part.Circle(Vector(6.7, 3.7, 0), Vector(0, 0, 1), 3.1), math.radians(0), math.radians(90)), False)
sketch8.addGeometry(Part.LineSegment(Vector(6.7, 6.8, 0), Vector(-6.7, 6.8, 0)), False)
sketch8.addGeometry(Part.ArcOfCircle(Part.Circle(Vector(-6.7, 3.7, 0), Vector(0, 0, 1), 3.1), math.radians(90), math.radians(180)), False)
sketch8.addGeometry(Part.LineSegment(Vector(-9.8, 3.7, 0), Vector(-9.8, -3.7, 0)), False)
sketch8.addConstraint(Sketcher.Constraint("Tangent", 0, 1, 1, 1))
sketch8.addConstraint(Sketcher.Constraint("Tangent", 1, 2, 2, 2))
sketch8.addConstraint(Sketcher.Constraint("Tangent", 2, 1, 3, 1))
sketch8.addConstraint(Sketcher.Constraint("Tangent", 3, 2, 4, 2))
sketch8.addConstraint(Sketcher.Constraint("Tangent", 4, 1, 5, 1))
sketch8.addConstraint(Sketcher.Constraint("Tangent", 5, 2, 6, 2))
sketch8.addConstraint(Sketcher.Constraint("Tangent", 6, 1, 7, 1))
sketch8.addConstraint(Sketcher.Constraint("Tangent", 7, 2, 0, 2))
sketch8.addConstraint(Sketcher.Constraint("Tangent", 8, 2, 9, 1))
sketch8.addConstraint(Sketcher.Constraint("Tangent", 9, 2, 10, 1))
sketch8.addConstraint(Sketcher.Constraint("Tangent", 10, 2, 11, 1))
sketch8.addConstraint(Sketcher.Constraint("Tangent", 11, 2, 12, 1))
sketch8.addConstraint(Sketcher.Constraint("Tangent", 12, 2, 13, 1))
sketch8.addConstraint(Sketcher.Constraint("Tangent", 13, 2, 14, 1))
sketch8.addConstraint(Sketcher.Constraint("Tangent", 14, 2, 15, 1))
sketch8.addConstraint(Sketcher.Constraint("Tangent", 15, 2, 8, 1))
sketch8.addConstraint(Sketcher.Constraint("Vertical", 1))
sketch8.addConstraint(Sketcher.Constraint("Horizontal", 3))
sketch8.addConstraint(Sketcher.Constraint("Vertical", 5))
sketch8.addConstraint(Sketcher.Constraint("Horizontal", 7))
sketch8.addConstraint(Sketcher.Constraint("Horizontal", 9))
sketch8.addConstraint(Sketcher.Constraint("Vertical", 11))
sketch8.addConstraint(Sketcher.Constraint("Horizontal", 13))
sketch8.addConstraint(Sketcher.Constraint("Vertical", 15))
sketch8.addConstraint(Sketcher.Constraint("Equal", 0, 2))
sketch8.addConstraint(Sketcher.Constraint("Equal", 2, 4))
sketch8.addConstraint(Sketcher.Constraint("Equal", 4, 6))
sketch8.addConstraint(Sketcher.Constraint("Equal", 8, 10))
sketch8.addConstraint(Sketcher.Constraint("Equal", 10, 12))
sketch8.addConstraint(Sketcher.Constraint("Equal", 12, 14))
sketch8.addConstraint(Sketcher.Constraint("Symmetric", 0, 3, 4, 3, -1, 1))
sketch8.addConstraint(Sketcher.Constraint("Symmetric", 8, 3, 12, 3, -1, 1))
sketch8.addConstraint(Sketcher.Constraint("Radius", 0, 5.0))
sketch8.addConstraint(Sketcher.Constraint("Radius", 8, 3.1))
sketch8.addConstraint(Sketcher.Constraint("DistanceX", 3, 1, 3, 2, 23.0))
sketch8.addConstraint(Sketcher.Constraint("DistanceY", 1, 1, 1, 2, 12.0))
sketch8.addConstraint(Sketcher.Constraint("DistanceX", 9, 1, 9, 2, 13.4))
sketch8.addConstraint(Sketcher.Constraint("DistanceY", 11, 1, 11, 2, 7.4))
pad7 = body4.newObject("PartDesign::Pad", "Pad006")
pad7.Profile = sketch8
pad7.Length = 1.2
body5 = doc.addObject("PartDesign::Body", "Body004")

# Sketch on XY plane
sketch9 = body5.newObject("Sketcher::SketchObject", "Sketch008")
sketch9.AttachmentSupport = (doc.getObject("XY_Plane004"), [""])
sketch9.MapMode = "FlatFace"
sketch9.AttachmentOffset = App.Placement(Vector(0, 0, 4.1), App.Rotation())
sketch9.addGeometry(Part.LineSegment(Vector(11.5, 11, 0), Vector(-11.5, 11, 0)), False)
sketch9.addGeometry(Part.ArcOfCircle(Part.Circle(Vector(-11.5, 6, 0), Vector(0, 0, 1), 5), math.radians(90), math.radians(180)), False)
sketch9.addGeometry(Part.LineSegment(Vector(-16.5, 6, 0), Vector(-16.5, -6, 0)), False)
sketch9.addGeometry(Part.ArcOfCircle(Part.Circle(Vector(-11.5, -6, 0), Vector(0, 0, 1), 5), math.radians(180), math.radians(270)), False)
sketch9.addGeometry(Part.LineSegment(Vector(-11.5, -11, 0), Vector(11.5, -11, 0)), False)
sketch9.addGeometry(Part.ArcOfCircle(Part.Circle(Vector(11.5, -6, 0), Vector(0, 0, 1), 5), math.radians(-90), math.radians(0)), False)
sketch9.addGeometry(Part.LineSegment(Vector(16.5, -6, 0), Vector(16.5, 6, 0)), False)
sketch9.addGeometry(Part.ArcOfCircle(Part.Circle(Vector(11.5, 6, 0), Vector(0, 0, 1), 5), math.radians(0), math.radians(90)), False)
sketch9.addGeometry(Part.ArcOfCircle(Part.Circle(Vector(-6.7, 3.7, 0), Vector(0, 0, 1), 1.5), math.radians(90), math.radians(180)), False)
sketch9.addGeometry(Part.LineSegment(Vector(-6.7, 5.2, 0), Vector(6.7, 5.2, 0)), False)
sketch9.addGeometry(Part.ArcOfCircle(Part.Circle(Vector(6.7, 3.7, 0), Vector(0, 0, 1), 1.5), math.radians(0), math.radians(90)), False)
sketch9.addGeometry(Part.LineSegment(Vector(8.2, 3.7, 0), Vector(8.2, -3.7, 0)), False)
sketch9.addGeometry(Part.ArcOfCircle(Part.Circle(Vector(6.7, -3.7, 0), Vector(0, 0, 1), 1.5), math.radians(-90), math.radians(0)), False)
sketch9.addGeometry(Part.LineSegment(Vector(6.7, -5.2, 0), Vector(-6.7, -5.2, 0)), False)
sketch9.addGeometry(Part.ArcOfCircle(Part.Circle(Vector(-6.7, -3.7, 0), Vector(0, 0, 1), 1.5), math.radians(-180), math.radians(-90)), False)
sketch9.addGeometry(Part.LineSegment(Vector(-8.2, -3.7, 0), Vector(-8.2, 3.7, 0)), False)
sketch9.addConstraint(Sketcher.Constraint("Tangent", 0, 2, 1, 1))
sketch9.addConstraint(Sketcher.Constraint("Tangent", 1, 2, 2, 1))
sketch9.addConstraint(Sketcher.Constraint("Tangent", 2, 2, 3, 1))
sketch9.addConstraint(Sketcher.Constraint("Tangent", 3, 2, 4, 1))
sketch9.addConstraint(Sketcher.Constraint("Tangent", 4, 2, 5, 1))
sketch9.addConstraint(Sketcher.Constraint("Tangent", 5, 2, 6, 1))
sketch9.addConstraint(Sketcher.Constraint("Tangent", 6, 2, 7, 1))
sketch9.addConstraint(Sketcher.Constraint("Tangent", 7, 2, 0, 1))
sketch9.addConstraint(Sketcher.Constraint("Tangent", 8, 1, 9, 1))
sketch9.addConstraint(Sketcher.Constraint("Tangent", 9, 2, 10, 2))
sketch9.addConstraint(Sketcher.Constraint("Tangent", 10, 1, 11, 1))
sketch9.addConstraint(Sketcher.Constraint("Tangent", 11, 2, 12, 2))
sketch9.addConstraint(Sketcher.Constraint("Tangent", 12, 1, 13, 1))
sketch9.addConstraint(Sketcher.Constraint("Tangent", 13, 2, 14, 2))
sketch9.addConstraint(Sketcher.Constraint("Tangent", 14, 1, 15, 1))
sketch9.addConstraint(Sketcher.Constraint("Tangent", 15, 2, 8, 2))
sketch9.addConstraint(Sketcher.Constraint("Horizontal", 0))
sketch9.addConstraint(Sketcher.Constraint("Vertical", 2))
sketch9.addConstraint(Sketcher.Constraint("Horizontal", 4))
sketch9.addConstraint(Sketcher.Constraint("Vertical", 6))
sketch9.addConstraint(Sketcher.Constraint("Horizontal", 9))
sketch9.addConstraint(Sketcher.Constraint("Vertical", 11))
sketch9.addConstraint(Sketcher.Constraint("Horizontal", 13))
sketch9.addConstraint(Sketcher.Constraint("Vertical", 15))
sketch9.addConstraint(Sketcher.Constraint("Equal", 1, 3))
sketch9.addConstraint(Sketcher.Constraint("Equal", 3, 5))
sketch9.addConstraint(Sketcher.Constraint("Equal", 5, 7))
sketch9.addConstraint(Sketcher.Constraint("Equal", 8, 10))
sketch9.addConstraint(Sketcher.Constraint("Equal", 10, 12))
sketch9.addConstraint(Sketcher.Constraint("Equal", 12, 14))
sketch9.addConstraint(Sketcher.Constraint("Symmetric", 1, 3, 5, 3, -1, 1))
sketch9.addConstraint(Sketcher.Constraint("Symmetric", 8, 3, 12, 3, -1, 1))
sketch9.addConstraint(Sketcher.Constraint("Radius", 1, 5.0))
sketch9.addConstraint(Sketcher.Constraint("Radius", 8, 1.500001))
sketch9.addConstraint(Sketcher.Constraint("DistanceX", 0, 2, 0, 1, 23.0))
sketch9.addConstraint(Sketcher.Constraint("DistanceY", 2, 2, 2, 1, 12.0))
sketch9.addConstraint(Sketcher.Constraint("DistanceX", 9, 1, 9, 2, 13.4))
sketch9.addConstraint(Sketcher.Constraint("DistanceY", 11, 2, 11, 1, 7.4))
pad8 = body5.newObject("PartDesign::Pad", "Pad007")
pad8.Profile = sketch9
pad8.Length = 1.2

doc.recompute()
